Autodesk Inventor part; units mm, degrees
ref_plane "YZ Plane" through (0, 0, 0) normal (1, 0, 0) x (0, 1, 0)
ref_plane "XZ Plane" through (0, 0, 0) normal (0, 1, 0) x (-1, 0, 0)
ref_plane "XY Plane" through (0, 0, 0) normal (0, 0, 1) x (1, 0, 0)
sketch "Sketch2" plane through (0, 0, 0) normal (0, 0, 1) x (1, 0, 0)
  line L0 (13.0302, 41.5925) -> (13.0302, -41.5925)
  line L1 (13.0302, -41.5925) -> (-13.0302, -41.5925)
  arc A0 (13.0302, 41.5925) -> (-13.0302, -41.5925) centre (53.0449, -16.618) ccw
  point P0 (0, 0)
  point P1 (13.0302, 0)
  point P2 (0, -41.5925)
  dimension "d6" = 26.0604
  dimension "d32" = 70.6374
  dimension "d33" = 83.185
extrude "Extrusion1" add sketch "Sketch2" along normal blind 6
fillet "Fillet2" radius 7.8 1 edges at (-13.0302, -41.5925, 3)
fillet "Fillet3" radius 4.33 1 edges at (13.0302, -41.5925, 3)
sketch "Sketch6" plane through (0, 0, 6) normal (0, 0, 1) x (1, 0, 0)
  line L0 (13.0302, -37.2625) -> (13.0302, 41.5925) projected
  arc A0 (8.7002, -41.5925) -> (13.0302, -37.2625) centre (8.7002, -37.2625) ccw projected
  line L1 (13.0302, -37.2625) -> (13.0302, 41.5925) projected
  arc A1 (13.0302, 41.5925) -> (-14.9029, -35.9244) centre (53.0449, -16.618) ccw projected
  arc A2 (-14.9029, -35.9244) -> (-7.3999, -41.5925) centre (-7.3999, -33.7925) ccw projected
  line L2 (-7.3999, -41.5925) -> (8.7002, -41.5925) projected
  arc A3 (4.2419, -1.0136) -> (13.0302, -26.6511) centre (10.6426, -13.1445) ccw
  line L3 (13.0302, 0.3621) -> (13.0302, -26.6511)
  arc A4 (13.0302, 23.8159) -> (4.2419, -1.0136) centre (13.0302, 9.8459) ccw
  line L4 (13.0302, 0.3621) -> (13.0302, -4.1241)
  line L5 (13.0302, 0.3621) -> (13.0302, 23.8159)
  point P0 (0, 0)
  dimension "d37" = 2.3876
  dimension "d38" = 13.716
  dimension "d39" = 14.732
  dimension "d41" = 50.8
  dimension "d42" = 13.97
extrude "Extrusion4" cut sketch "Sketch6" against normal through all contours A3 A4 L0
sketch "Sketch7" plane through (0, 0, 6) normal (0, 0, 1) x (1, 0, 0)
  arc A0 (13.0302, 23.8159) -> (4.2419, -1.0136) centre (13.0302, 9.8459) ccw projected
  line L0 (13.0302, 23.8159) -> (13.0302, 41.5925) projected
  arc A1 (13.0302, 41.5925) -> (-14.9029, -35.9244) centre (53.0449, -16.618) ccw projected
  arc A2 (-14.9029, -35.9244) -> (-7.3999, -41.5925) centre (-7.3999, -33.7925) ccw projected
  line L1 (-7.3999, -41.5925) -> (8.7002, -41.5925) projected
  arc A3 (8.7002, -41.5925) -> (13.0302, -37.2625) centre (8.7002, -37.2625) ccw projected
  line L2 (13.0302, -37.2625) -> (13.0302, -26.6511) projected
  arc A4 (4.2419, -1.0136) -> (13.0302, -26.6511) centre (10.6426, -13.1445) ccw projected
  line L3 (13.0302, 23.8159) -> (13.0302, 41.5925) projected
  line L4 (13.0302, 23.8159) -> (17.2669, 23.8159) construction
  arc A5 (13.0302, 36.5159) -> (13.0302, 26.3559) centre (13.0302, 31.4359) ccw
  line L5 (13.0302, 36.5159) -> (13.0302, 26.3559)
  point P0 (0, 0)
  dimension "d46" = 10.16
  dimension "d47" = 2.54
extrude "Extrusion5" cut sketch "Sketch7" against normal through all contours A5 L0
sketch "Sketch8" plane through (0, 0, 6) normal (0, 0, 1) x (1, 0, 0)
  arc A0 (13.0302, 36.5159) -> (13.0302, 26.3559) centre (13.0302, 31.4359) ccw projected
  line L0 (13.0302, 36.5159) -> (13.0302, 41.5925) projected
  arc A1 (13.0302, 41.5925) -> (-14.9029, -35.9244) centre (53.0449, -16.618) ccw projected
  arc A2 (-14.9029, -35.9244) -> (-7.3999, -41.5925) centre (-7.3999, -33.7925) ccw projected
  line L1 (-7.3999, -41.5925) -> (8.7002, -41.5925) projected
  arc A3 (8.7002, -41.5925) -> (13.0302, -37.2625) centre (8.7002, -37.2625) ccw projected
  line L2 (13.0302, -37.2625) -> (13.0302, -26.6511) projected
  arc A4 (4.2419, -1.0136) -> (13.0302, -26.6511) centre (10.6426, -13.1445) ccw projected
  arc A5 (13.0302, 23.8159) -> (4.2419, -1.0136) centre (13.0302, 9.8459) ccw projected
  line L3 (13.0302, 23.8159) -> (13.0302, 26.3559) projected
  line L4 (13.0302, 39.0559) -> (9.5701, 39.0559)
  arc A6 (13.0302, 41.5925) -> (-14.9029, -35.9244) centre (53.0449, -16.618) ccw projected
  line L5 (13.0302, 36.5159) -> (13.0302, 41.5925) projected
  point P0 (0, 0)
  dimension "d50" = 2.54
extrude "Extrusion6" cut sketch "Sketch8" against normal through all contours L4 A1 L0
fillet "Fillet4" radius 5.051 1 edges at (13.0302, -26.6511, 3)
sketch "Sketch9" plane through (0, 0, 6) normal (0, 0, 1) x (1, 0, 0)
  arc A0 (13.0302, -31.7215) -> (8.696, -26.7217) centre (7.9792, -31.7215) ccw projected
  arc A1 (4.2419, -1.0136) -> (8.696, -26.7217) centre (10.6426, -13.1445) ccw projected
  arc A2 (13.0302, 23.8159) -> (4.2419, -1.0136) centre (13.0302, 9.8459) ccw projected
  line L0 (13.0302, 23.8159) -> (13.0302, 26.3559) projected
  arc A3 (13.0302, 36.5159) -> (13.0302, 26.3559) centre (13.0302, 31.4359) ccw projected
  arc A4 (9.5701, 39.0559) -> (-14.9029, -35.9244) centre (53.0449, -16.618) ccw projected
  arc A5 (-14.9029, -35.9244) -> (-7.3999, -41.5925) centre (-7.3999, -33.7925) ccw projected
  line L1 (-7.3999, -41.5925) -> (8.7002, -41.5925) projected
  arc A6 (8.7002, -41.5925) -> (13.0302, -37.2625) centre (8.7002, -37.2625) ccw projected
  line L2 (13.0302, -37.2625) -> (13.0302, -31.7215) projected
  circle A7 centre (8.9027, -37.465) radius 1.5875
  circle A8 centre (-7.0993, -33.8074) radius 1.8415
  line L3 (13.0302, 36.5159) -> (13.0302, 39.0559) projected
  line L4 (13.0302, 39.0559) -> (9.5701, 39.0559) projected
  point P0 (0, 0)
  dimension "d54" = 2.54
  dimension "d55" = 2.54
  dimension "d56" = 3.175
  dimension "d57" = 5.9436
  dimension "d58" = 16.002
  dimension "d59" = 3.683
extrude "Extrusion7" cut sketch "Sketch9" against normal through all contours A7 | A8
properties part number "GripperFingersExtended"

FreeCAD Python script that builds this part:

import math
import FreeCAD as App
import Part
import Sketcher

V = App.Vector
Q = App.Units.Quantity


def edges_at(feature, points):
    """Names of the edges that pass closest to the given points."""
    edges = feature.Shape.Edges
    near = lambda p: min(range(len(edges)), key=lambda i: edges[i].distToShape(Part.Vertex(*p))[0])
    return sorted({f"Edge{near(p) + 1}" for p in points})

doc = App.newDocument("Part")
body = doc.addObject("PartDesign::Body", "Body")

sketch1 = body.newObject("Sketcher::SketchObject", "Sketch")
sketch1.AttachmentSupport = (doc.getObject("XY_Plane"), [""])
sketch1.MapMode = "FlatFace"
sketch1.addGeometry(Part.LineSegment(V(13, -42, 0), V(13, 42, 0)), False)
sketch1.addGeometry(Part.ArcOfCircle(Part.Circle(V(53, -17, 0), V(0, 0, 1), 71), math.radians(125), math.radians(201)), False)
sketch1.addGeometry(Part.LineSegment(V(-13, -42, 0), V(13, -42, 0)), False)
sketch1.addConstraint(Sketcher.Constraint("Coincident", 0, 2, 1, 1))
sketch1.addConstraint(Sketcher.Constraint("Coincident", 1, 2, 2, 1))
sketch1.addConstraint(Sketcher.Constraint("Coincident", 2, 2, 0, 1))
sketch1.addConstraint(Sketcher.Constraint("Vertical", 0))
sketch1.addConstraint(Sketcher.Constraint("Horizontal", 2))
sketch1.addConstraint(Sketcher.Constraint("Symmetric", 0, 2, 1, 2, -1, 1))
sketch1.addConstraint(Sketcher.Constraint("Radius", 1, Q("2.781 in")))
sketch1.addConstraint(Sketcher.Constraint("DistanceX", 2, 1, 2, 2, Q("1.026 in")))
sketch1.addConstraint(Sketcher.Constraint("DistanceY", 0, 1, 0, 2, Q("3.275 in")))
pad1 = body.newObject("PartDesign::Pad", "Pad")
pad1.Profile = sketch1
pad1.Length = 6
doc.recompute()

fillet = body.newObject("PartDesign::Fillet", "Fillet")
fillet.Base = (pad1, edges_at(pad1, [(-13.03, -41.593, 3)]))
fillet.Radius = 7.8
doc.recompute()

fillet2 = body.newObject("PartDesign::Fillet", "Fillet001")
fillet2.Base = (fillet, edges_at(fillet, [(13.03, -41.593, 3)]))
fillet2.Radius = 4.33

sketch2 = body.newObject("Sketcher::SketchObject", "Sketch001")
sketch2.AttachmentSupport = (doc.getObject("XY_Plane"), [""])
sketch2.MapMode = "FlatFace"
sketch2.AttachmentOffset = App.Placement(V(0, 0, 6), App.Rotation())
sketch2.addGeometry(Part.ArcOfCircle(Part.Circle(V(11, -13, 0), V(0, 0, 1), 14), math.radians(118), math.radians(280)), False)
sketch2.addGeometry(Part.LineSegment(V(13, -27, 0), V(13, 24, 0)), False)
sketch2.addGeometry(Part.ArcOfCircle(Part.Circle(V(13, 10, 0), V(0, 0, 1), 14), math.radians(90), math.radians(231)), False)
sketch2.addConstraint(Sketcher.Constraint("Coincident", 0, 2, 1, 1))
sketch2.addConstraint(Sketcher.Constraint("Coincident", 1, 2, 2, 1))
sketch2.addConstraint(Sketcher.Constraint("Coincident", 2, 2, 0, 1))
sketch2.addConstraint(Sketcher.Constraint("Vertical", 1))
sketch2.addConstraint(Sketcher.Constraint("Vertical", 2, 3, 0, 2))
sketch2.addConstraint(Sketcher.Constraint("Radius", 0, Q("0.54 in")))
sketch2.addConstraint(Sketcher.Constraint("Radius", 2, Q("0.55 in")))
sketch2.addConstraint(Sketcher.Constraint("DistanceX", 0, 3, 2, 3, Q("0.094 in")))
sketch2.addConstraint(Sketcher.Constraint("DistanceY", 1, 1, 1, 2, Q("1.9869 in")))
sketch2.addConstraint(Sketcher.Constraint("DistanceX", -1, 1, 0, 3, Q("0.419 in")))
sketch2.addConstraint(Sketcher.Constraint("DistanceY", 0, 3, -1, 1, Q("0.5175 in")))
pocket1 = body.newObject("PartDesign::Pocket", "Pocket")
pocket1.Profile = sketch2
pocket1.Type = "ThroughAll"

sketch3 = body.newObject("Sketcher::SketchObject", "Sketch002")
sketch3.AttachmentSupport = (doc.getObject("XY_Plane"), [""])
sketch3.MapMode = "FlatFace"
sketch3.AttachmentOffset = App.Placement(V(0, 0, 6), App.Rotation())
sketch3.addGeometry(Part.ArcOfCircle(Part.Circle(V(13, 31, 0), V(0, 0, 1), 5), math.radians(90), math.radians(270)), False)
sketch3.addGeometry(Part.LineSegment(V(13, 26, 0), V(13, 37, 0)), False)
sketch3.addConstraint(Sketcher.Constraint("Coincident", 0, 1, 1, 2))
sketch3.addConstraint(Sketcher.Constraint("Coincident", 1, 1, 0, 2))
sketch3.addConstraint(Sketcher.Constraint("Vertical", 1))
sketch3.addConstraint(Sketcher.Constraint("Radius", 0, Q("0.2 in")))
sketch3.addConstraint(Sketcher.Constraint("DistanceX", -1, 1, 0, 3, Q("0.513 in")))
sketch3.addConstraint(Sketcher.Constraint("DistanceX", -1, 1, 0, 1, Q("0.513 in")))
sketch3.addConstraint(Sketcher.Constraint("DistanceY", -1, 1, 0, 3, 31.436))
pocket2 = body.newObject("PartDesign::Pocket", "Pocket001")
pocket2.Profile = sketch3
pocket2.Type = "ThroughAll"

sketch4 = body.newObject("Sketcher::SketchObject", "Sketch003")
sketch4.AttachmentSupport = (doc.getObject("XY_Plane"), [""])
sketch4.MapMode = "FlatFace"
sketch4.AttachmentOffset = App.Placement(V(0, 0, 6), App.Rotation())
sketch4.addGeometry(Part.LineSegment(V(9.6, 39.1, 0), V(13, 39.1, 0)), False)
sketch4.addGeometry(Part.LineSegment(V(13, 39.1, 0), V(13, 41.6, 0)), False)
sketch4.addGeometry(Part.ArcOfCircle(Part.Circle(V(53, -16.6, 0), V(0, 0, 1), 70.6), math.radians(124.51), math.radians(127.99)), False)
sketch4.addConstraint(Sketcher.Constraint("Coincident", 0, 2, 1, 1))
sketch4.addConstraint(Sketcher.Constraint("Coincident", 1, 2, 2, 1))
sketch4.addConstraint(Sketcher.Constraint("Coincident", 2, 2, 0, 1))
sketch4.addConstraint(Sketcher.Constraint("Horizontal", 0))
sketch4.addConstraint(Sketcher.Constraint("Vertical", 1))
sketch4.addConstraint(Sketcher.Constraint("Radius", 2, Q("2.781 in")))
sketch4.addConstraint(Sketcher.Constraint("DistanceX", -1, 1, 0, 2, Q("0.513 in")))
sketch4.addConstraint(Sketcher.Constraint("DistanceX", 0, 1, 0, 2, 3.46))
sketch4.addConstraint(Sketcher.Constraint("DistanceY", 1, 1, 1, 2, 2.5366))
sketch4.addConstraint(Sketcher.Constraint("DistanceY", -1, 1, 1, 2, Q("1.6375 in")))
pocket3 = body.newObject("PartDesign::Pocket", "Pocket002")
pocket3.Profile = sketch4
pocket3.Type = "ThroughAll"
doc.recompute()

fillet3 = body.newObject("PartDesign::Fillet", "Fillet002")
fillet3.Base = (pocket3, edges_at(pocket3, [(13.03, -26.651, 3)]))
fillet3.Radius = 5.051

sketch5 = body.newObject("Sketcher::SketchObject", "Sketch004")
sketch5.AttachmentSupport = (doc.getObject("XY_Plane"), [""])
sketch5.MapMode = "FlatFace"
sketch5.AttachmentOffset = App.Placement(V(0, 0, 6), App.Rotation())
sketch5.addGeometry(Part.Circle(V(8.9, -37.5, 0), V(0, 0, 1), 1.6), False)
sketch5.addGeometry(Part.Circle(V(-7.1, -33.8, 0), V(0, 0, 1), 1.8), False)
sketch5.addConstraint(Sketcher.Constraint("Diameter", 0, Q("0.125 in")))
sketch5.addConstraint(Sketcher.Constraint("Diameter", 1, Q("0.145 in")))
sketch5.addConstraint(Sketcher.Constraint("DistanceX", 1, 3, 0, 3, Q("0.63 in")))
sketch5.addConstraint(Sketcher.Constraint("DistanceY", 0, 3, -1, 1, Q("1.475 in")))
sketch5.addConstraint(Sketcher.Constraint("DistanceY", 1, 3, -1, 1, Q("1.331 in")))
sketch5.addConstraint(Sketcher.Constraint("DistanceX", -1, 1, 0, 3, Q("0.3505 in")))
pocket4 = body.newObject("PartDesign::Pocket", "Pocket003")
pocket4.Profile = sketch5
pocket4.Type = "ThroughAll"

doc.recompute()
